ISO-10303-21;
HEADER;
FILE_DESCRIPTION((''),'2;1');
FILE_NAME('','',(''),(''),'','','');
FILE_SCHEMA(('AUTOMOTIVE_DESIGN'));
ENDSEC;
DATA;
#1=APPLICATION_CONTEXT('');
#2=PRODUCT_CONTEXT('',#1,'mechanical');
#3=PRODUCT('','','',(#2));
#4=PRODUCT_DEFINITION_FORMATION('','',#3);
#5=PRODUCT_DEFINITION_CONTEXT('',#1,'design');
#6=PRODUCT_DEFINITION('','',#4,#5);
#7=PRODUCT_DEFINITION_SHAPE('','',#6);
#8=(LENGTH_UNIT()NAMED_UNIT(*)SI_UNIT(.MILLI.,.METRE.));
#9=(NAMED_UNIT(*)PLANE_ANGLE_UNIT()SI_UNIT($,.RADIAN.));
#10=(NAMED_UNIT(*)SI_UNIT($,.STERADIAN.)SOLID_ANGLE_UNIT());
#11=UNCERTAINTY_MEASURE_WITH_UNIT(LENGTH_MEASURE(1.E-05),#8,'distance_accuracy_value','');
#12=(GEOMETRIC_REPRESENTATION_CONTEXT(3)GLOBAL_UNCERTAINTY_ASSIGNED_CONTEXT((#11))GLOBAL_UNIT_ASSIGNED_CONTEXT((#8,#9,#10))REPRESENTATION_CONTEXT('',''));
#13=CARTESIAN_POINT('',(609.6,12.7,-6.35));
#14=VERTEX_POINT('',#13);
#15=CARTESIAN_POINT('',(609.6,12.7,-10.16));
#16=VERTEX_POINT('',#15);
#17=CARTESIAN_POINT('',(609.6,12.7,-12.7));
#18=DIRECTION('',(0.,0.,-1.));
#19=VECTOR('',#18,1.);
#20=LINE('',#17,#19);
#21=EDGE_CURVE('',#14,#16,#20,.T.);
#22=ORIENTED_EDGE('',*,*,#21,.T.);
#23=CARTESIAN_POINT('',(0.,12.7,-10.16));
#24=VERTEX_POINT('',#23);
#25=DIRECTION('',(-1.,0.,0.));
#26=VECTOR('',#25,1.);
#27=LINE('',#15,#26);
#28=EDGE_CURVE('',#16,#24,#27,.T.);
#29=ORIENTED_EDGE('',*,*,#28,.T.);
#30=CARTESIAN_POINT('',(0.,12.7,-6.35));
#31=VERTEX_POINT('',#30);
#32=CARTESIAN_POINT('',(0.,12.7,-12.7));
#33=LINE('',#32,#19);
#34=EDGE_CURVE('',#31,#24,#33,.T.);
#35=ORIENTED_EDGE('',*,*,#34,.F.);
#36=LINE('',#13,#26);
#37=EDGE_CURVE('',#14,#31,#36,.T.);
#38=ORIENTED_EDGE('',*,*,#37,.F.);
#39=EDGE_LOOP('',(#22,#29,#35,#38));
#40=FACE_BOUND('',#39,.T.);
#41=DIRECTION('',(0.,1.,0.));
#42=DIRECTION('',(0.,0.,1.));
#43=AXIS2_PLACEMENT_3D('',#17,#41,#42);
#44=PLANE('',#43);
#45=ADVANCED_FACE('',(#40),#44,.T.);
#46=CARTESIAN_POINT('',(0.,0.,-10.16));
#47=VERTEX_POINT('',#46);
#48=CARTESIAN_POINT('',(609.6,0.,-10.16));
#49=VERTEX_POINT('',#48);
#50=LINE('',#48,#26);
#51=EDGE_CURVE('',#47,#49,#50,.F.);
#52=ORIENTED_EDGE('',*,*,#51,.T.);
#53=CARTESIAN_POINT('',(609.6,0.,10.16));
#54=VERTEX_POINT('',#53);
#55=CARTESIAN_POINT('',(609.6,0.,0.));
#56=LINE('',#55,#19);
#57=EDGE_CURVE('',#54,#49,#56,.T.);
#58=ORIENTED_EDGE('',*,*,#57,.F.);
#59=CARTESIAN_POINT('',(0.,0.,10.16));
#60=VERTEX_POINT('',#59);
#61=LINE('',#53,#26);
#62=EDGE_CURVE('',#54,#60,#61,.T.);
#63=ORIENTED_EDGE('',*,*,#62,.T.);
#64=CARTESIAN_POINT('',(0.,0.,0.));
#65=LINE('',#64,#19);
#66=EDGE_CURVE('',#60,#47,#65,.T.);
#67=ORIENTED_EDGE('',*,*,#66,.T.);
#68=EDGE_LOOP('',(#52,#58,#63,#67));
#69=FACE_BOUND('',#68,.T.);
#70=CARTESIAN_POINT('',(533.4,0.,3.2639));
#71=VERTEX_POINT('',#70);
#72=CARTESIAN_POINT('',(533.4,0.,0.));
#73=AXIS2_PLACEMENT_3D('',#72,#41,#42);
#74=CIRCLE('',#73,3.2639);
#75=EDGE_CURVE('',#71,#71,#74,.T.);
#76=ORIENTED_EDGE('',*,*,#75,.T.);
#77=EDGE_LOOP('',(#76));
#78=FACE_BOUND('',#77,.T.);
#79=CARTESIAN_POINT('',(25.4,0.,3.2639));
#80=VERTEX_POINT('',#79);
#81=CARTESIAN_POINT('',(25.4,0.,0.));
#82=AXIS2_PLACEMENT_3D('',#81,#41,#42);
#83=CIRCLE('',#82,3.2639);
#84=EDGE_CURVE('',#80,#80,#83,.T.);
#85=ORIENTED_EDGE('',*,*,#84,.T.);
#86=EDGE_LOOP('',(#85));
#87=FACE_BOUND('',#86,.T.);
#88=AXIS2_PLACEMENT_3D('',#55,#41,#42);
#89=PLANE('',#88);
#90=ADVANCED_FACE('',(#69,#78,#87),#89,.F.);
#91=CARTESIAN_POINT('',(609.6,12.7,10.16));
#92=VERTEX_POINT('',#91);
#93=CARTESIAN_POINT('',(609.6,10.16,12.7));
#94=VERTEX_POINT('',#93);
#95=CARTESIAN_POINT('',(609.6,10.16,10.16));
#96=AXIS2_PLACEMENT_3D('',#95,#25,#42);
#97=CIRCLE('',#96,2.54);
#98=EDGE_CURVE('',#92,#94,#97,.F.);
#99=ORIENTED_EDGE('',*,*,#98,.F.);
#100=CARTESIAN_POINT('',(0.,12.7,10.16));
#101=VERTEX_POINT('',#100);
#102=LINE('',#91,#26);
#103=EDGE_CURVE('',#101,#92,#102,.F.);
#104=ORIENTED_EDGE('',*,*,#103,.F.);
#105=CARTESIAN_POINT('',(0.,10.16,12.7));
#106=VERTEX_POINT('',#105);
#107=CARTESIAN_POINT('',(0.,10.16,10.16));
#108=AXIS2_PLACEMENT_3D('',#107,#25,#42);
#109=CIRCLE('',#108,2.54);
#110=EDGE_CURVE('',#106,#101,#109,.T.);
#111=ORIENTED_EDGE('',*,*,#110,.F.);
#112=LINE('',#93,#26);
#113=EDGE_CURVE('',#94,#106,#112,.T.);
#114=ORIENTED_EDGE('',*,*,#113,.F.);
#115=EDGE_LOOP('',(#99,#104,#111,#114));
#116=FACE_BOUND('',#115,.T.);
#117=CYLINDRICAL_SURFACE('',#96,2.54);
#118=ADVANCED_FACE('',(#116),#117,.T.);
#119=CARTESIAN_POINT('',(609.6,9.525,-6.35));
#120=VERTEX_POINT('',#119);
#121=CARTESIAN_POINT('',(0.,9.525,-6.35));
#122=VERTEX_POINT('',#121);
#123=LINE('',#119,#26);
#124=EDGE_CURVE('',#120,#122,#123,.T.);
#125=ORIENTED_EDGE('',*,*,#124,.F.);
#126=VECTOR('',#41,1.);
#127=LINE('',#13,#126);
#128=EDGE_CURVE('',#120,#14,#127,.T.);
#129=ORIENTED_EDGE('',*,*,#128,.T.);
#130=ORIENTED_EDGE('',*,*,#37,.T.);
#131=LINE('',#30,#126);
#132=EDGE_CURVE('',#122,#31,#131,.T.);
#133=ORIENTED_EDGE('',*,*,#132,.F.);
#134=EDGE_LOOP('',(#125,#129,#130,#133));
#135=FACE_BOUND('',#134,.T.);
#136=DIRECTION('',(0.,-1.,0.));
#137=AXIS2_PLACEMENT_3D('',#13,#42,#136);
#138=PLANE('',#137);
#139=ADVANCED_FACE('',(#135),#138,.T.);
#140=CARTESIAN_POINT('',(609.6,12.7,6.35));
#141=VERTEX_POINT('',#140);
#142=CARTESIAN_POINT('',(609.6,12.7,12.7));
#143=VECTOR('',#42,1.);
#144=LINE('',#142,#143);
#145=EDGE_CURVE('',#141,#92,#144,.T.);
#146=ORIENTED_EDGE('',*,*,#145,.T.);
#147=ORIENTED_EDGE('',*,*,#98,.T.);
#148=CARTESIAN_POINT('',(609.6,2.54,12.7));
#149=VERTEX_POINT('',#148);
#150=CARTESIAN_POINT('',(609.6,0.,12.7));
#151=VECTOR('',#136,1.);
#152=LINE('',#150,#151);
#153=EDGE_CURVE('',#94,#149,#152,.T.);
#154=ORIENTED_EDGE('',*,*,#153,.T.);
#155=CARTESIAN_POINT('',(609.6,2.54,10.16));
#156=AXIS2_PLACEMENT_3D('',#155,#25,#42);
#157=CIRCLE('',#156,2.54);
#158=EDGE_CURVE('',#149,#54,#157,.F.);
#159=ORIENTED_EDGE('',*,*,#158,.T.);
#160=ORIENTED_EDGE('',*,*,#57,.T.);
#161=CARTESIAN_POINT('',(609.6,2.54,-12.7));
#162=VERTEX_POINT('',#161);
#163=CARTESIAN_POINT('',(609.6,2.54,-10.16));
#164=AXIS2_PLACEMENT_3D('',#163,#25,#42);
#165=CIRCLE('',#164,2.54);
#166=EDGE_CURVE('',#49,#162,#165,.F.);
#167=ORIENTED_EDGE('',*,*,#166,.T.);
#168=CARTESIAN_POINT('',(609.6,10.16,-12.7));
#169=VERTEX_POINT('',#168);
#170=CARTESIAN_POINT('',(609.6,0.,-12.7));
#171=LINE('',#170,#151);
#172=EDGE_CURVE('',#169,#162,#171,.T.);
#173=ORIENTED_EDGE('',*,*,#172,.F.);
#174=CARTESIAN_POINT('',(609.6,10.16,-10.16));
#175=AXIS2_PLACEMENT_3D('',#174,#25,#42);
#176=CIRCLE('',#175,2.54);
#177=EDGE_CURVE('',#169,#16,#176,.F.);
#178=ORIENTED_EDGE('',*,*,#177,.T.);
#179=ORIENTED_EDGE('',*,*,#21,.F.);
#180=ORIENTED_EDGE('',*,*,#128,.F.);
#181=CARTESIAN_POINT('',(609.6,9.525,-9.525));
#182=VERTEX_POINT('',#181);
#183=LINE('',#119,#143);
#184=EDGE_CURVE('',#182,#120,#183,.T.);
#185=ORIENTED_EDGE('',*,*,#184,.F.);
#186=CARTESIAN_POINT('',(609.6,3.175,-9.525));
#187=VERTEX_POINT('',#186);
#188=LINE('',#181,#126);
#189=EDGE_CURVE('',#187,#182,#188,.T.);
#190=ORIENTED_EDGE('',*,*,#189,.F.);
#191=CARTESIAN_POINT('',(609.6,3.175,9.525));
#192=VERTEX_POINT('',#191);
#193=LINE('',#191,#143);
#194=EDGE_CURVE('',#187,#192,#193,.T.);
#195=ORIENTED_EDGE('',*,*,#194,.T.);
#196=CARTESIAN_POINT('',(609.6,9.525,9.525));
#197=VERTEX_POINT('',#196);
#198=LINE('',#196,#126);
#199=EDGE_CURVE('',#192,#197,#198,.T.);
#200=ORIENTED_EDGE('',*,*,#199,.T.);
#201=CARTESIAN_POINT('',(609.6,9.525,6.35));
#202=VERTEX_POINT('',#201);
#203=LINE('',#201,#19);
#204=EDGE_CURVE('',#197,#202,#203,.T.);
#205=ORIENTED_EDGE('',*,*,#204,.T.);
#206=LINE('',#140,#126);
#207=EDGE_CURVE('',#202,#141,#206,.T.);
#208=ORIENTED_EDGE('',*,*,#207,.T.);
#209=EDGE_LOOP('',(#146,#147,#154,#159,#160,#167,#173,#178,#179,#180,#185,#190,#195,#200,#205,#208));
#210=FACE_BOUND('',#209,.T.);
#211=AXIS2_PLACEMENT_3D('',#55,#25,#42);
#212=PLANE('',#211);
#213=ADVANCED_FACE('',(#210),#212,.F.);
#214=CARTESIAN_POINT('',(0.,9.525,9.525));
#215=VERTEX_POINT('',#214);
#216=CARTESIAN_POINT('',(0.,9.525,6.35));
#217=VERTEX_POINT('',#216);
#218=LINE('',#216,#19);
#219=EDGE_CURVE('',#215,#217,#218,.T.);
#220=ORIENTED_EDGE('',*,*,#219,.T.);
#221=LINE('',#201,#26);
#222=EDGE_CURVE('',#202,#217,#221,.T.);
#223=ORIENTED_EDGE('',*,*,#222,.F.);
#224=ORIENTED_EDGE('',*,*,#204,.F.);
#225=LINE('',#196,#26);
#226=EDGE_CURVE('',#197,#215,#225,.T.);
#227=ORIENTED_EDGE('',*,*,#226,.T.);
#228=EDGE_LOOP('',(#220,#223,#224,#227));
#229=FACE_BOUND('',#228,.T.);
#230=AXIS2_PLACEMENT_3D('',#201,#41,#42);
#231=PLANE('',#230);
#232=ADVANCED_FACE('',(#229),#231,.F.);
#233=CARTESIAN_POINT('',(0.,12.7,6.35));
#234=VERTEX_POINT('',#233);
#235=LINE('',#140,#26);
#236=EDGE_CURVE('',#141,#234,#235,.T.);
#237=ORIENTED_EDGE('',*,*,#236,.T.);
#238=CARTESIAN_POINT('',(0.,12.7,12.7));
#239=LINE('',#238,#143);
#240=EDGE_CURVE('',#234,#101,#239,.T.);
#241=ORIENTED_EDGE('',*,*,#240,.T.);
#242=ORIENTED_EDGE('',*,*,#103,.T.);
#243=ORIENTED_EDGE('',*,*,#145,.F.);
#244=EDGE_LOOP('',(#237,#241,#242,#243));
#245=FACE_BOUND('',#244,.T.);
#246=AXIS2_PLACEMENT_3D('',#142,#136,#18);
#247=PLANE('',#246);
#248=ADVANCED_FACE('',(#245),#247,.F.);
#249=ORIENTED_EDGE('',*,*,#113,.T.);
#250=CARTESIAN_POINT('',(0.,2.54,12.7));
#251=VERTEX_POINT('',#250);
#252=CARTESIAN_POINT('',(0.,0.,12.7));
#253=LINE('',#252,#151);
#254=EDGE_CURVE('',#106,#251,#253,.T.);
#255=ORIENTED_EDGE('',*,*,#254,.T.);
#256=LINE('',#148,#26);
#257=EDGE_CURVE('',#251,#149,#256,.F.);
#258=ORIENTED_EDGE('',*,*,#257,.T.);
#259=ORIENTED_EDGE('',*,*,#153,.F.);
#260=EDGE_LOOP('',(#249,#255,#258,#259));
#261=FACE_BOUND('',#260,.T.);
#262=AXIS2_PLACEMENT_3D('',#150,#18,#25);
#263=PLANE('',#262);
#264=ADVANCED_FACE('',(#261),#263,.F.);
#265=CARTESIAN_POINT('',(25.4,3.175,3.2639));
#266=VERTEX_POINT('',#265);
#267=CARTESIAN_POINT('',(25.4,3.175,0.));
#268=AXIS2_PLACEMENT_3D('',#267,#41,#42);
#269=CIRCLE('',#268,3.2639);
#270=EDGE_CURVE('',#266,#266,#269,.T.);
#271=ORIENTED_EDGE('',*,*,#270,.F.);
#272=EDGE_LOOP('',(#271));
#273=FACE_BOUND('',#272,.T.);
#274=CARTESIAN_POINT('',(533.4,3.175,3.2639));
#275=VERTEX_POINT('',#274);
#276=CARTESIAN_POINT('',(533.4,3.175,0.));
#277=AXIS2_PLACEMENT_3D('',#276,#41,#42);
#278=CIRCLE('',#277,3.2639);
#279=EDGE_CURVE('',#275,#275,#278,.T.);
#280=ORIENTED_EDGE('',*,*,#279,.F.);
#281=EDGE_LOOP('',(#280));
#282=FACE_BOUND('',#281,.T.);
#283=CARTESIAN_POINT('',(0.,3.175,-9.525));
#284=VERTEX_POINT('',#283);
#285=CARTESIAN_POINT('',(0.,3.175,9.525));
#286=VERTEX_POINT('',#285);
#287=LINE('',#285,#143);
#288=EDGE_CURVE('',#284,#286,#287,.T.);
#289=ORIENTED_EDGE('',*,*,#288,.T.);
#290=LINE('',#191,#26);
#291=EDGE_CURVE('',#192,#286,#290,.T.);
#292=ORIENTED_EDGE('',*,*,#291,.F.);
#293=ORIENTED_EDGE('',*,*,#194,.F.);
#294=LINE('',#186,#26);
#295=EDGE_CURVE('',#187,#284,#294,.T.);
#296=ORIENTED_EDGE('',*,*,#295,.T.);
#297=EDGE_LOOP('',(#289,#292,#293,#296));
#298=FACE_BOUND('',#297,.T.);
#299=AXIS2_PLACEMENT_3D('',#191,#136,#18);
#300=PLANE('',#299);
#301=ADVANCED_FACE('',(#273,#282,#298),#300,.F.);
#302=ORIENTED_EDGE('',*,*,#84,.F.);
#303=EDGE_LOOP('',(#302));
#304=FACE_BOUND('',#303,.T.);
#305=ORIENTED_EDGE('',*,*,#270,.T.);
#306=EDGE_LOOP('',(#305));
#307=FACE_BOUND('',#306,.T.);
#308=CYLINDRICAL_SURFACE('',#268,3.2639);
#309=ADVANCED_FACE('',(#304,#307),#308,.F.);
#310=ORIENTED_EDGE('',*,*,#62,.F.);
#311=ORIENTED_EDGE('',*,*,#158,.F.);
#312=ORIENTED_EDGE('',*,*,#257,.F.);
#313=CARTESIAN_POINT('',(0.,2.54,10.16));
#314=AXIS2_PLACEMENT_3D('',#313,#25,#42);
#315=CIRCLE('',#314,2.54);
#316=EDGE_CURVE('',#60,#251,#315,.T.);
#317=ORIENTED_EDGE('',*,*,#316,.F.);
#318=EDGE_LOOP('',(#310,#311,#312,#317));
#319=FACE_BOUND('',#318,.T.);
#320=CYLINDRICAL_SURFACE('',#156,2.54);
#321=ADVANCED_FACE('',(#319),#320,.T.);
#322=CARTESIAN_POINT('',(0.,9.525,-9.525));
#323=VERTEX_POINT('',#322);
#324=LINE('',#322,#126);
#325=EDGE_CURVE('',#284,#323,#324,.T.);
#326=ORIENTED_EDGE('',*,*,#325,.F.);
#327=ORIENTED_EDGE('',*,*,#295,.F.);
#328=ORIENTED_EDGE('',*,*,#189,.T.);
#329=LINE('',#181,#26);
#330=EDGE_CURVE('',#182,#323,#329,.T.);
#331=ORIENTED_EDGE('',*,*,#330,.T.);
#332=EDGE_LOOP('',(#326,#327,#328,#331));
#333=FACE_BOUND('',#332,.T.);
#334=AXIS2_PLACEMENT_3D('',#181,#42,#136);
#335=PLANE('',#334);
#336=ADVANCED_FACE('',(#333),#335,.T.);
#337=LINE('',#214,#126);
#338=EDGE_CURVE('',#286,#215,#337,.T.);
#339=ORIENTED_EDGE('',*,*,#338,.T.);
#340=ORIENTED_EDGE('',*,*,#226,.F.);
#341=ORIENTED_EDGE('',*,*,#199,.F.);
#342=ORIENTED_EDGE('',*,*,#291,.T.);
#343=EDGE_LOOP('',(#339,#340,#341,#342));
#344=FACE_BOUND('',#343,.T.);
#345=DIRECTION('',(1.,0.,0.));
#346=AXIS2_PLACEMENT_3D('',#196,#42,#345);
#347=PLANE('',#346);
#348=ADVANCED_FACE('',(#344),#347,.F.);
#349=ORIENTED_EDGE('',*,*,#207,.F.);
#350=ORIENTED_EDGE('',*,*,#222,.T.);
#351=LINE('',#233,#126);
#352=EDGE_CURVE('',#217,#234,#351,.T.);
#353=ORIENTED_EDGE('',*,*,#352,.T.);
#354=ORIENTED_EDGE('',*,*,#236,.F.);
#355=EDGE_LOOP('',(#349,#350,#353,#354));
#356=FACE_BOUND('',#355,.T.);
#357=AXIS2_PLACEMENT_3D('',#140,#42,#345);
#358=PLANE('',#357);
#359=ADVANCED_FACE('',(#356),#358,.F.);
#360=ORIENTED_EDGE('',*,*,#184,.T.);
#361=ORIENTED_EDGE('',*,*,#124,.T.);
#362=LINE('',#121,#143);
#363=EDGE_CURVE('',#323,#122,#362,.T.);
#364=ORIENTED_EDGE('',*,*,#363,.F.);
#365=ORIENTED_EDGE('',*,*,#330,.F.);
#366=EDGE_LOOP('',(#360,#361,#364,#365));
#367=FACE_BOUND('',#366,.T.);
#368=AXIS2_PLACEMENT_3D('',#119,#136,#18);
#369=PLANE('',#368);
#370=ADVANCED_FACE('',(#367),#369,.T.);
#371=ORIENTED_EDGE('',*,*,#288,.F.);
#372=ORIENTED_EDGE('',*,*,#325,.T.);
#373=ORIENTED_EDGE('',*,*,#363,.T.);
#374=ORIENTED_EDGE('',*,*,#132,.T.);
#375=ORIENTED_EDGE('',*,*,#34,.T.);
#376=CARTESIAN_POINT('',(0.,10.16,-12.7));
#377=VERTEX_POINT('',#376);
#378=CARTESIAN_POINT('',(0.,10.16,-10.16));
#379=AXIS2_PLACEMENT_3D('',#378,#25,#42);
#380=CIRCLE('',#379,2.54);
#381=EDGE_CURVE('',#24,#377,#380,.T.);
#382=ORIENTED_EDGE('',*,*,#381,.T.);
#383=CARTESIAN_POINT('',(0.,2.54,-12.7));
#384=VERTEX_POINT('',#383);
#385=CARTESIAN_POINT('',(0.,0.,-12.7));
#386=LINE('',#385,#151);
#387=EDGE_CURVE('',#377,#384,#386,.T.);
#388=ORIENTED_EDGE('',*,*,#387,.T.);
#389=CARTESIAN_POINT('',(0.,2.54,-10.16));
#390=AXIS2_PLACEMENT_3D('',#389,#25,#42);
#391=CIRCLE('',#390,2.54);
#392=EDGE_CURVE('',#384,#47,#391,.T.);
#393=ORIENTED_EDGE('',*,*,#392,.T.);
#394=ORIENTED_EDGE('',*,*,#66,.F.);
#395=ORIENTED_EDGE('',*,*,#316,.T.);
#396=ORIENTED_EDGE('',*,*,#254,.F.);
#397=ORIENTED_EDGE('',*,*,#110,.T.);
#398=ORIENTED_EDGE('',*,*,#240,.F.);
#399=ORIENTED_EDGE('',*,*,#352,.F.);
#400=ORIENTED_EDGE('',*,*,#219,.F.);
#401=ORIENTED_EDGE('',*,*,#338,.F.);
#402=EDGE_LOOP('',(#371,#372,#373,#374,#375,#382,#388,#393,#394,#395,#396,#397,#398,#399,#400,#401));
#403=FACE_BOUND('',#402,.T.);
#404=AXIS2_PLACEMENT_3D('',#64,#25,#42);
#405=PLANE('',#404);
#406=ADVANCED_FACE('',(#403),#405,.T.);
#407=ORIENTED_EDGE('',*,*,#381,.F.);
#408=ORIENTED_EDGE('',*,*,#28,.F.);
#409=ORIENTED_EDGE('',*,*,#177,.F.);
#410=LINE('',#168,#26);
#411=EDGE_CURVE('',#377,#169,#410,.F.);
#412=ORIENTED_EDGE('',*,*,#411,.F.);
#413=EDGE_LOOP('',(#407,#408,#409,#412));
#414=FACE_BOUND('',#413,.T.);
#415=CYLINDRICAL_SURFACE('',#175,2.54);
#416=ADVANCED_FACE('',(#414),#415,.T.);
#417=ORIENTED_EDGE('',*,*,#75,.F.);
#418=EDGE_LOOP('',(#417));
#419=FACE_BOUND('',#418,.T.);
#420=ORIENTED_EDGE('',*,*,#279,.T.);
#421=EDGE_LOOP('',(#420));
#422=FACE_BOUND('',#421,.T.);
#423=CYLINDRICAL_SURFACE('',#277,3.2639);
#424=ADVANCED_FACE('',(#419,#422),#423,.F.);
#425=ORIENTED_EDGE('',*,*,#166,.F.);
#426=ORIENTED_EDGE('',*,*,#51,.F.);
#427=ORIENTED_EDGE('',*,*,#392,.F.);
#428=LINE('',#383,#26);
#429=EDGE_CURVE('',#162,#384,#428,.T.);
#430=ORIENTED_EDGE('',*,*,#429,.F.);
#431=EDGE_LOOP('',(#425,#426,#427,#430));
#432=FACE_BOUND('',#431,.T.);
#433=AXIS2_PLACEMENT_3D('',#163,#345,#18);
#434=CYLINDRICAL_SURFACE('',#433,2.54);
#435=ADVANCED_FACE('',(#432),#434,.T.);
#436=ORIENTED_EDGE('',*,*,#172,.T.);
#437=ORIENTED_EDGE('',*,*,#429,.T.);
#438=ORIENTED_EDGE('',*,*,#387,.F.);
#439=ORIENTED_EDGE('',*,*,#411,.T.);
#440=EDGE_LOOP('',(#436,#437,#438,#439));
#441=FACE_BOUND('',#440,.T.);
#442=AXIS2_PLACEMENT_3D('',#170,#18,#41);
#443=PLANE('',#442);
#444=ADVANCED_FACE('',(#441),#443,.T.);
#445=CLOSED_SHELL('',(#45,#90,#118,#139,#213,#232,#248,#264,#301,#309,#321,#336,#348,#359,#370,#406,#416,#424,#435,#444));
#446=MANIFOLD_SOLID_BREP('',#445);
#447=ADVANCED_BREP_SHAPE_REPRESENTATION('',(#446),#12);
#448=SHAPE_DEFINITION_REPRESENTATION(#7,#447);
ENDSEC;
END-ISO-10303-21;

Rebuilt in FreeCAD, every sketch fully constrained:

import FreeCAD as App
import Part
import Sketcher

V = App.Vector
Q = App.Units.Quantity


def edges_at(feature, points):
    """Names of the edges that pass closest to the given points."""
    edges = feature.Shape.Edges
    near = lambda p: min(range(len(edges)), key=lambda i: edges[i].distToShape(Part.Vertex(*p))[0])
    return sorted({f"Edge{near(p) + 1}" for p in points})


def add_polygon(sketch, points):
    """Adds a closed chain of lines whose ends are joined by coincident constraints."""
    first, n = sketch.GeometryCount, len(points)
    for a, b in zip(points, points[1:] + points[:1]):
        sketch.addGeometry(Part.LineSegment(App.Vector(*a, 0), App.Vector(*b, 0)), False)
    for i in range(n):
        sketch.addConstraint(Sketcher.Constraint("Coincident", first + i, 2, first + (i + 1) % n, 1))

doc = App.newDocument("Part")
body = doc.addObject("PartDesign::Body", "Body")

# Sketch on YZ plane
sketch1 = body.newObject("Sketcher::SketchObject", "Sketch")
sketch1.AttachmentSupport = (doc.getObject("YZ_Plane"), [""])
sketch1.MapMode = "FlatFace"
add_polygon(sketch1, [(0, 12.7), (0, 0), (3.2, 0), (3.2, 9.5), (9.5, 9.5), (9.5, 6.3), (12.7, 6.3), (12.7, 12.7)])  # lines 0-7
sketch1.addConstraint([
    Sketcher.Constraint("Vertical", 0),
    Sketcher.Constraint("Horizontal", 1),
    Sketcher.Constraint("Vertical", 2),
    Sketcher.Constraint("Horizontal", 3),
    Sketcher.Constraint("Vertical", 4),
    Sketcher.Constraint("Horizontal", 5),
    Sketcher.Constraint("Vertical", 6),
    Sketcher.Constraint("Horizontal", 7),
    Sketcher.Constraint("Coincident", 0, 2, -1, 1),
    Sketcher.Constraint("Equal", 1, 5),
    Sketcher.Constraint("Equal", 7, 0),
    Sketcher.Constraint("Equal", 5, 4),
    Sketcher.Constraint("Equal", 3, 6),
    Sketcher.Constraint("DistanceX", 7, 2, 7, 1, Q("0.5 in")),
    Sketcher.Constraint("DistanceX", 3, 1, 3, 2, Q("0.25 in")),
])
pad1 = body.newObject("PartDesign::Pad", "Pad")
pad1.Profile = sketch1
pad1.Length = Q("24 in")
doc.recompute()

mirrored = body.newObject("PartDesign::Mirrored", "Mirrored")
mirrored.Originals = [pad1]
mirrored.MirrorPlane = (doc.getObject("XY_Plane"), [""])
body.Tip = mirrored
doc.recompute()

fillet = body.newObject("PartDesign::Fillet", "Fillet")
fillet.Base = (mirrored, edges_at(mirrored, [
    (304.8, 0, 12.7),
    (304.8, 12.7, 12.7),
    (304.8, 0, -12.7),
    (304.8, 12.7, -12.7),
]))
fillet.Radius = Q("0.1 in")

# Sketch on XZ plane
sketch2 = body.newObject("Sketcher::SketchObject", "Sketch001")
sketch2.AttachmentSupport = (doc.getObject("XZ_Plane"), [""])
sketch2.MapMode = "FlatFace"
sketch2.AttachmentOffset = App.Placement(V(0, 0, -0.125 * 25.4), App.Rotation())
sketch2.addGeometry([
    Part.Circle(V(25.4, 0, 0), V(0, 0, 1), 3.3),
    Part.Circle(V(533.4, 0, 0), V(0, 0, 1), 3.3),
], False)
sketch2.addConstraint([
    Sketcher.Constraint("Equal", 0, 1),
    Sketcher.Constraint("PointOnObject", 0, 3, -1),
    Sketcher.Constraint("PointOnObject", 1, 3, -1),
    Sketcher.Constraint("Diameter", 0, Q("0.257 in")),
    Sketcher.Constraint("DistanceX", -1, 1, 0, 3, Q("1 in")),
    Sketcher.Constraint("DistanceX", -1, 1, 1, 3, Q("21 in")),
])
doc.recompute()
hole = body.newObject("PartDesign::Hole", "Hole")
hole.Profile = sketch2
hole.ThreadType = "None"
hole.Diameter = Q("0.257 in")
hole.DepthType = "Dimension"
hole.Depth = Q("0.88 in")
hole.DrillPoint = "Angled"
hole.DrillPointAngle = 118
hole.Reversed = True

doc.recompute()
